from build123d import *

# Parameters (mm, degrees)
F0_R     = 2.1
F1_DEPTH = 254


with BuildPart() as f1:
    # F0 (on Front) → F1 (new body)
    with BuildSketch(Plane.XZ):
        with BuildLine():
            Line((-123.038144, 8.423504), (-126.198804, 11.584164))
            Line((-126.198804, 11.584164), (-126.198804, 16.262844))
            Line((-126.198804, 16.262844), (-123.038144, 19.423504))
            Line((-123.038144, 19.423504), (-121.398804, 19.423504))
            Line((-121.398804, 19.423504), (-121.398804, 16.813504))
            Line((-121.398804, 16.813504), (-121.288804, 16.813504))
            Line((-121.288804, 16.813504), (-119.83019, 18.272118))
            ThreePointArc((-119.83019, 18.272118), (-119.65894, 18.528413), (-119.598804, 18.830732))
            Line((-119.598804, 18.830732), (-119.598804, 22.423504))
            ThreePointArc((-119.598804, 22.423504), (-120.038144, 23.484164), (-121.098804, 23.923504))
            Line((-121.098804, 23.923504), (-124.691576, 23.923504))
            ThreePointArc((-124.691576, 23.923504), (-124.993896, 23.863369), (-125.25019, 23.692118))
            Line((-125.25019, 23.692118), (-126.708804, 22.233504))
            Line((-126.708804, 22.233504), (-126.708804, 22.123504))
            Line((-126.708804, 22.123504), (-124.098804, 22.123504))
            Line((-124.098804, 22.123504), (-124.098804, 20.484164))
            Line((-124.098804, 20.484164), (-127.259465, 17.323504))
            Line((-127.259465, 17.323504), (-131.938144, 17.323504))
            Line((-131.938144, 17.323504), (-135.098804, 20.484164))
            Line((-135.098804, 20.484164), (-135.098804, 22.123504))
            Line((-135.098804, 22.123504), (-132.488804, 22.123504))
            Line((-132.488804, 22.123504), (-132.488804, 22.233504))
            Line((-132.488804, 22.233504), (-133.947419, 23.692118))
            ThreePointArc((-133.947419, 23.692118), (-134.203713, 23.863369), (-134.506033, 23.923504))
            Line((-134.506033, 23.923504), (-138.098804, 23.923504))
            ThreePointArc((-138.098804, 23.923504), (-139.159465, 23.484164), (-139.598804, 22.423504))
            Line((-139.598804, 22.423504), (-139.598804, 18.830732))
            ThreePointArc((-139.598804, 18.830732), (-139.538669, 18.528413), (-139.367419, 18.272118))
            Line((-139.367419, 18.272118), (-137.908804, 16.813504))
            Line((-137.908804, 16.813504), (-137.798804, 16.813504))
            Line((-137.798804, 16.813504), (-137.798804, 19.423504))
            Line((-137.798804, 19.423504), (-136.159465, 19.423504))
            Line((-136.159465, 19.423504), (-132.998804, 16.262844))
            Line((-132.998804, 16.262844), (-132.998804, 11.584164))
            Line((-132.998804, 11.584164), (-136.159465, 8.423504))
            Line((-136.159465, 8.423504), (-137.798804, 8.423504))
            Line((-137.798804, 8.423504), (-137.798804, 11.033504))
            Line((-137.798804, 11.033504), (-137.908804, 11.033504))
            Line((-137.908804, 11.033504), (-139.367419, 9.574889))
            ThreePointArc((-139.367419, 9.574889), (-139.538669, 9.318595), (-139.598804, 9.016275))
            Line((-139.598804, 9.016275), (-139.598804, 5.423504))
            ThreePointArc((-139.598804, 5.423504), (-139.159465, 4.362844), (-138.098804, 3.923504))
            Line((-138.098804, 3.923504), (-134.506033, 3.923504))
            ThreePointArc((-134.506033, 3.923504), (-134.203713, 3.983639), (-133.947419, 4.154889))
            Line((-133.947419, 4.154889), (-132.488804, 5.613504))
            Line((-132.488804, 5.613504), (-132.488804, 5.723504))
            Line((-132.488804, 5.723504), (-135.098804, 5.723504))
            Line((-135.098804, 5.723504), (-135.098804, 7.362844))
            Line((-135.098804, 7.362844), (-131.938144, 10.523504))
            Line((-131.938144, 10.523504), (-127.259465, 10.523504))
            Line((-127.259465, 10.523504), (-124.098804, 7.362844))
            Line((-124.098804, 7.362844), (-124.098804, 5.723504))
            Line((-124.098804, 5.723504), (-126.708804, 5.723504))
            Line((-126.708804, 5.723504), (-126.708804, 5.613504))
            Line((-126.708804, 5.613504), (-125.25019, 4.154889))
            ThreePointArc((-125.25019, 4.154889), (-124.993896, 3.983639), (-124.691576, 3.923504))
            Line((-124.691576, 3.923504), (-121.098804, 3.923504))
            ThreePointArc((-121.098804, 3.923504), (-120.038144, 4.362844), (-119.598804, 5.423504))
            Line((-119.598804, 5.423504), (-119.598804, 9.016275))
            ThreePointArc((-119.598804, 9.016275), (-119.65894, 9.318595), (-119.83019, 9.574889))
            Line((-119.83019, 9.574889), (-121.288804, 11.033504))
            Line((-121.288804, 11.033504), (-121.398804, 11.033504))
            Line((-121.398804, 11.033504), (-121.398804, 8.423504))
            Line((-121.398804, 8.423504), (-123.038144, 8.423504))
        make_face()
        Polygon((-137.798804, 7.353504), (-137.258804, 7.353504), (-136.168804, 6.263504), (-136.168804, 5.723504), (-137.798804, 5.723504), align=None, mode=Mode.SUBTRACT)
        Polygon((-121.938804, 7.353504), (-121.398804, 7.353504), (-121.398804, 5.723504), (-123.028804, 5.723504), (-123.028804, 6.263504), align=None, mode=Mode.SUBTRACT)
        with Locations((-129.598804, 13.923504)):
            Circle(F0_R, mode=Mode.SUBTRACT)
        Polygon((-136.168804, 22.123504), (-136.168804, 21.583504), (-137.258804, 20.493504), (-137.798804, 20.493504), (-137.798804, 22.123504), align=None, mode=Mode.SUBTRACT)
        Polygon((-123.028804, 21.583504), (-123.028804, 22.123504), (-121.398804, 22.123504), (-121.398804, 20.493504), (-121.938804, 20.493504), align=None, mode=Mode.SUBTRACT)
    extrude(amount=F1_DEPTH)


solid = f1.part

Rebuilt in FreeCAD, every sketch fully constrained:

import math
import FreeCAD as App
import Part
import Sketcher
from FreeCAD import Vector

doc = App.newDocument("Part")
body = doc.addObject("PartDesign::Body", "Body")

sketch1 = body.newObject("Sketcher::SketchObject", "Sketch")
sketch1.AttachmentSupport = (doc.getObject("XZ_Plane"), [""])
sketch1.MapMode = "FlatFace"
sketch1.addGeometry([
    Part.LineSegment(Vector(-123.04, 8.42, 0), Vector(-126.2, 11.58, 0)),
    Part.LineSegment(Vector(-126.2, 11.58, 0), Vector(-126.2, 16.26, 0)),
    Part.LineSegment(Vector(-126.2, 16.26, 0), Vector(-123.04, 19.42, 0)),
    Part.LineSegment(Vector(-123.04, 19.42, 0), Vector(-121.4, 19.42, 0)),
    Part.LineSegment(Vector(-121.4, 19.42, 0), Vector(-121.4, 16.81, 0)),
    Part.LineSegment(Vector(-121.4, 16.81, 0), Vector(-121.29, 16.81, 0)),
    Part.LineSegment(Vector(-121.29, 16.81, 0), Vector(-119.83, 18.27, 0)),
    Part.ArcOfCircle(Part.Circle(Vector(-120.39, 18.83, 0), Vector(0, 0, 1), 0.79), math.radians(-45), math.radians(0)),
    Part.LineSegment(Vector(-119.6, 18.83, 0), Vector(-119.6, 22.42, 0)),
    Part.ArcOfCircle(Part.Circle(Vector(-121.1, 22.42, 0), Vector(0, 0, 1), 1.5), math.radians(0), math.radians(90)),
    Part.LineSegment(Vector(-121.1, 23.92, 0), Vector(-124.69, 23.92, 0)),
    Part.ArcOfCircle(Part.Circle(Vector(-124.69, 23.13, 0), Vector(0, 0, 1), 0.79), math.radians(90), math.radians(135)),
    Part.LineSegment(Vector(-125.25, 23.69, 0), Vector(-126.71, 22.23, 0)),
    Part.LineSegment(Vector(-126.71, 22.23, 0), Vector(-126.71, 22.12, 0)),
    Part.LineSegment(Vector(-126.71, 22.12, 0), Vector(-124.1, 22.12, 0)),
    Part.LineSegment(Vector(-124.1, 22.12, 0), Vector(-124.1, 20.48, 0)),
    Part.LineSegment(Vector(-124.1, 20.48, 0), Vector(-127.26, 17.32, 0)),
    Part.LineSegment(Vector(-127.26, 17.32, 0), Vector(-131.94, 17.32, 0)),
    Part.LineSegment(Vector(-131.94, 17.32, 0), Vector(-135.1, 20.48, 0)),
    Part.LineSegment(Vector(-135.1, 20.48, 0), Vector(-135.1, 22.12, 0)),
    Part.LineSegment(Vector(-135.1, 22.12, 0), Vector(-132.49, 22.12, 0)),
    Part.LineSegment(Vector(-132.49, 22.12, 0), Vector(-132.49, 22.23, 0)),
    Part.LineSegment(Vector(-132.49, 22.23, 0), Vector(-133.95, 23.69, 0)),
    Part.ArcOfCircle(Part.Circle(Vector(-134.51, 23.13, 0), Vector(0, 0, 1), 0.79), math.radians(45), math.radians(90)),
    Part.LineSegment(Vector(-134.51, 23.92, 0), Vector(-138.1, 23.92, 0)),
    Part.ArcOfCircle(Part.Circle(Vector(-138.1, 22.42, 0), Vector(0, 0, 1), 1.5), math.radians(90), math.radians(180)),
    Part.LineSegment(Vector(-139.6, 22.42, 0), Vector(-139.6, 18.83, 0)),
    Part.ArcOfCircle(Part.Circle(Vector(-138.81, 18.83, 0), Vector(0, 0, 1), 0.79), math.radians(-180), math.radians(-135)),
    Part.LineSegment(Vector(-139.37, 18.27, 0), Vector(-137.91, 16.81, 0)),
    Part.LineSegment(Vector(-137.91, 16.81, 0), Vector(-137.8, 16.81, 0)),
    Part.LineSegment(Vector(-137.8, 16.81, 0), Vector(-137.8, 19.42, 0)),
    Part.LineSegment(Vector(-137.8, 19.42, 0), Vector(-136.16, 19.42, 0)),
    Part.LineSegment(Vector(-136.16, 19.42, 0), Vector(-133, 16.26, 0)),
    Part.LineSegment(Vector(-133, 16.26, 0), Vector(-133, 11.58, 0)),
    Part.LineSegment(Vector(-133, 11.58, 0), Vector(-136.16, 8.42, 0)),
    Part.LineSegment(Vector(-136.16, 8.42, 0), Vector(-137.8, 8.42, 0)),
    Part.LineSegment(Vector(-137.8, 8.42, 0), Vector(-137.8, 11.03, 0)),
    Part.LineSegment(Vector(-137.8, 11.03, 0), Vector(-137.91, 11.03, 0)),
    Part.LineSegment(Vector(-137.91, 11.03, 0), Vector(-139.37, 9.57, 0)),
    Part.ArcOfCircle(Part.Circle(Vector(-138.81, 9.02, 0), Vector(0, 0, 1), 0.79), math.radians(135), math.radians(180)),
    Part.LineSegment(Vector(-139.6, 9.02, 0), Vector(-139.6, 5.42, 0)),
    Part.ArcOfCircle(Part.Circle(Vector(-138.1, 5.42, 0), Vector(0, 0, 1), 1.5), math.radians(180), math.radians(270)),
    Part.LineSegment(Vector(-138.1, 3.92, 0), Vector(-134.51, 3.92, 0)),
    Part.ArcOfCircle(Part.Circle(Vector(-134.51, 4.71, 0), Vector(0, 0, 1), 0.79), math.radians(-90), math.radians(-45)),
    Part.LineSegment(Vector(-133.95, 4.15, 0), Vector(-132.49, 5.61, 0)),
    Part.LineSegment(Vector(-132.49, 5.61, 0), Vector(-132.49, 5.72, 0)),
    Part.LineSegment(Vector(-132.49, 5.72, 0), Vector(-135.1, 5.72, 0)),
    Part.LineSegment(Vector(-135.1, 5.72, 0), Vector(-135.1, 7.36, 0)),
    Part.LineSegment(Vector(-135.1, 7.36, 0), Vector(-131.94, 10.52, 0)),
    Part.LineSegment(Vector(-131.94, 10.52, 0), Vector(-127.26, 10.52, 0)),
    Part.LineSegment(Vector(-127.26, 10.52, 0), Vector(-124.1, 7.36, 0)),
    Part.LineSegment(Vector(-124.1, 7.36, 0), Vector(-124.1, 5.72, 0)),
    Part.LineSegment(Vector(-124.1, 5.72, 0), Vector(-126.71, 5.72, 0)),
    Part.LineSegment(Vector(-126.71, 5.72, 0), Vector(-126.71, 5.61, 0)),
    Part.LineSegment(Vector(-126.71, 5.61, 0), Vector(-125.25, 4.15, 0)),
    Part.ArcOfCircle(Part.Circle(Vector(-124.69, 4.71, 0), Vector(0, 0, 1), 0.79), math.radians(-135), math.radians(-90)),
    Part.LineSegment(Vector(-124.69, 3.92, 0), Vector(-121.1, 3.92, 0)),
    Part.ArcOfCircle(Part.Circle(Vector(-121.1, 5.42, 0), Vector(0, 0, 1), 1.5), math.radians(-90), math.radians(0)),
    Part.LineSegment(Vector(-119.6, 5.42, 0), Vector(-119.6, 9.02, 0)),
    Part.ArcOfCircle(Part.Circle(Vector(-120.39, 9.02, 0), Vector(0, 0, 1), 0.79), math.radians(0), math.radians(45)),
    Part.LineSegment(Vector(-119.83, 9.57, 0), Vector(-121.29, 11.03, 0)),
    Part.LineSegment(Vector(-121.29, 11.03, 0), Vector(-121.4, 11.03, 0)),
    Part.LineSegment(Vector(-121.4, 11.03, 0), Vector(-121.4, 8.42, 0)),
    Part.LineSegment(Vector(-121.4, 8.42, 0), Vector(-123.04, 8.42, 0)),
    Part.LineSegment(Vector(-137.8, 5.72, 0), Vector(-137.8, 7.35, 0)),
    Part.LineSegment(Vector(-137.8, 7.35, 0), Vector(-137.26, 7.35, 0)),
    Part.LineSegment(Vector(-137.26, 7.35, 0), Vector(-136.17, 6.26, 0)),
    Part.LineSegment(Vector(-136.17, 6.26, 0), Vector(-136.17, 5.72, 0)),
    Part.LineSegment(Vector(-136.17, 5.72, 0), Vector(-137.8, 5.72, 0)),
    Part.LineSegment(Vector(-123.03, 6.26, 0), Vector(-121.94, 7.35, 0)),
    Part.LineSegment(Vector(-121.94, 7.35, 0), Vector(-121.4, 7.35, 0)),
    Part.LineSegment(Vector(-121.4, 7.35, 0), Vector(-121.4, 5.72, 0)),
    Part.LineSegment(Vector(-121.4, 5.72, 0), Vector(-123.03, 5.72, 0)),
    Part.LineSegment(Vector(-123.03, 5.72, 0), Vector(-123.03, 6.26, 0)),
    Part.Circle(Vector(-129.6, 13.92, 0), Vector(0, 0, 1), 2.1),
    Part.LineSegment(Vector(-137.8, 22.12, 0), Vector(-136.17, 22.12, 0)),
    Part.LineSegment(Vector(-136.17, 22.12, 0), Vector(-136.17, 21.58, 0)),
    Part.LineSegment(Vector(-136.17, 21.58, 0), Vector(-137.26, 20.49, 0)),
    Part.LineSegment(Vector(-137.26, 20.49, 0), Vector(-137.8, 20.49, 0)),
    Part.LineSegment(Vector(-137.8, 20.49, 0), Vector(-137.8, 22.12, 0)),
    Part.LineSegment(Vector(-121.94, 20.49, 0), Vector(-123.03, 21.58, 0)),
    Part.LineSegment(Vector(-123.03, 21.58, 0), Vector(-123.03, 22.12, 0)),
    Part.LineSegment(Vector(-123.03, 22.12, 0), Vector(-121.4, 22.12, 0)),
    Part.LineSegment(Vector(-121.4, 22.12, 0), Vector(-121.4, 20.49, 0)),
    Part.LineSegment(Vector(-121.4, 20.49, 0), Vector(-121.94, 20.49, 0)),
], False)
sketch1.addConstraint([
    Sketcher.Constraint("Coincident", 0, 2, 1, 1),
    Sketcher.Constraint("Coincident", 1, 2, 2, 1),
    Sketcher.Constraint("Coincident", 2, 2, 3, 1),
    Sketcher.Constraint("Coincident", 3, 2, 4, 1),
    Sketcher.Constraint("Coincident", 4, 2, 5, 1),
    Sketcher.Constraint("Coincident", 5, 2, 6, 1),
    Sketcher.Constraint("Coincident", 6, 2, 7, 1),
    Sketcher.Constraint("Coincident", 7, 2, 8, 1),
    Sketcher.Constraint("Tangent", 8, 2, 9, 1),
    Sketcher.Constraint("Tangent", 9, 2, 10, 1),
    Sketcher.Constraint("Coincident", 10, 2, 11, 1),
    Sketcher.Constraint("Coincident", 11, 2, 12, 1),
    Sketcher.Constraint("Coincident", 12, 2, 13, 1),
    Sketcher.Constraint("Coincident", 13, 2, 14, 1),
    Sketcher.Constraint("Coincident", 14, 2, 15, 1),
    Sketcher.Constraint("Coincident", 15, 2, 16, 1),
    Sketcher.Constraint("Coincident", 16, 2, 17, 1),
    Sketcher.Constraint("Coincident", 17, 2, 18, 1),
    Sketcher.Constraint("Coincident", 18, 2, 19, 1),
    Sketcher.Constraint("Coincident", 19, 2, 20, 1),
    Sketcher.Constraint("Coincident", 20, 2, 21, 1),
    Sketcher.Constraint("Coincident", 21, 2, 22, 1),
    Sketcher.Constraint("Coincident", 22, 2, 23, 1),
    Sketcher.Constraint("Coincident", 23, 2, 24, 1),
    Sketcher.Constraint("Tangent", 24, 2, 25, 1),
    Sketcher.Constraint("Tangent", 25, 2, 26, 1),
    Sketcher.Constraint("Tangent", 26, 2, 27, 1),
    Sketcher.Constraint("Coincident", 27, 2, 28, 1),
    Sketcher.Constraint("Coincident", 28, 2, 29, 1),
    Sketcher.Constraint("Coincident", 29, 2, 30, 1),
    Sketcher.Constraint("Coincident", 30, 2, 31, 1),
    Sketcher.Constraint("Coincident", 31, 2, 32, 1),
    Sketcher.Constraint("Coincident", 32, 2, 33, 1),
    Sketcher.Constraint("Coincident", 33, 2, 34, 1),
    Sketcher.Constraint("Coincident", 34, 2, 35, 1),
    Sketcher.Constraint("Coincident", 35, 2, 36, 1),
    Sketcher.Constraint("Coincident", 36, 2, 37, 1),
    Sketcher.Constraint("Coincident", 37, 2, 38, 1),
    Sketcher.Constraint("Tangent", 38, 2, 39, 1),
    Sketcher.Constraint("Tangent", 39, 2, 40, 1),
    Sketcher.Constraint("Tangent", 40, 2, 41, 1),
    Sketcher.Constraint("Tangent", 41, 2, 42, 1),
    Sketcher.Constraint("Tangent", 42, 2, 43, 1),
    Sketcher.Constraint("Tangent", 43, 2, 44, 1),
    Sketcher.Constraint("Coincident", 44, 2, 45, 1),
    Sketcher.Constraint("Coincident", 45, 2, 46, 1),
    Sketcher.Constraint("Coincident", 46, 2, 47, 1),
    Sketcher.Constraint("Coincident", 47, 2, 48, 1),
    Sketcher.Constraint("Coincident", 48, 2, 49, 1),
    Sketcher.Constraint("Coincident", 49, 2, 50, 1),
    Sketcher.Constraint("Coincident", 50, 2, 51, 1),
    Sketcher.Constraint("Coincident", 51, 2, 52, 1),
    Sketcher.Constraint("Coincident", 52, 2, 53, 1),
    Sketcher.Constraint("Coincident", 53, 2, 54, 1),
    Sketcher.Constraint("Tangent", 54, 2, 55, 1),
    Sketcher.Constraint("Tangent", 55, 2, 56, 1),
    Sketcher.Constraint("Tangent", 56, 2, 57, 1),
    Sketcher.Constraint("Tangent", 57, 2, 58, 1),
    Sketcher.Constraint("Coincident", 58, 2, 59, 1),
    Sketcher.Constraint("Tangent", 59, 2, 60, 1),
    Sketcher.Constraint("Coincident", 60, 2, 61, 1),
    Sketcher.Constraint("Coincident", 61, 2, 62, 1),
    Sketcher.Constraint("Coincident", 62, 2, 63, 1),
    Sketcher.Constraint("Coincident", 63, 2, 0, 1),
    Sketcher.Constraint("Coincident", 64, 2, 65, 1),
    Sketcher.Constraint("Coincident", 65, 2, 66, 1),
    Sketcher.Constraint("Coincident", 66, 2, 67, 1),
    Sketcher.Constraint("Coincident", 67, 2, 68, 1),
    Sketcher.Constraint("Coincident", 68, 2, 64, 1),
    Sketcher.Constraint("Coincident", 69, 2, 70, 1),
    Sketcher.Constraint("Coincident", 70, 2, 71, 1),
    Sketcher.Constraint("Coincident", 71, 2, 72, 1),
    Sketcher.Constraint("Coincident", 72, 2, 73, 1),
    Sketcher.Constraint("Coincident", 73, 2, 69, 1),
    Sketcher.Constraint("Coincident", 75, 2, 76, 1),
    Sketcher.Constraint("Coincident", 76, 2, 77, 1),
    Sketcher.Constraint("Coincident", 77, 2, 78, 1),
    Sketcher.Constraint("Coincident", 78, 2, 79, 1),
    Sketcher.Constraint("Coincident", 79, 2, 75, 1),
    Sketcher.Constraint("Coincident", 80, 2, 81, 1),
    Sketcher.Constraint("Coincident", 81, 2, 82, 1),
    Sketcher.Constraint("Coincident", 82, 2, 83, 1),
    Sketcher.Constraint("Coincident", 83, 2, 84, 1),
    Sketcher.Constraint("Coincident", 84, 2, 80, 1),
    Sketcher.Constraint("Vertical", 1),
    Sketcher.Constraint("Horizontal", 3),
    Sketcher.Constraint("Vertical", 4),
    Sketcher.Constraint("Horizontal", 5),
    Sketcher.Constraint("Vertical", 8),
    Sketcher.Constraint("Horizontal", 10),
    Sketcher.Constraint("Vertical", 13),
    Sketcher.Constraint("Horizontal", 14),
    Sketcher.Constraint("Vertical", 15),
    Sketcher.Constraint("Horizontal", 17),
    Sketcher.Constraint("Vertical", 19),
    Sketcher.Constraint("Horizontal", 20),
    Sketcher.Constraint("Vertical", 21),
    Sketcher.Constraint("Horizontal", 24),
    Sketcher.Constraint("Vertical", 26),
    Sketcher.Constraint("Horizontal", 29),
    Sketcher.Constraint("Vertical", 30),
    Sketcher.Constraint("Horizontal", 31),
    Sketcher.Constraint("Vertical", 33),
    Sketcher.Constraint("Horizontal", 35),
    Sketcher.Constraint("Vertical", 36),
    Sketcher.Constraint("Horizontal", 37),
    Sketcher.Constraint("Vertical", 40),
    Sketcher.Constraint("Horizontal", 42),
    Sketcher.Constraint("Vertical", 45),
    Sketcher.Constraint("Horizontal", 46),
    Sketcher.Constraint("Vertical", 47),
    Sketcher.Constraint("Horizontal", 49),
    Sketcher.Constraint("Vertical", 51),
    Sketcher.Constraint("Horizontal", 52),
    Sketcher.Constraint("Vertical", 53),
    Sketcher.Constraint("Horizontal", 56),
    Sketcher.Constraint("Vertical", 58),
    Sketcher.Constraint("Horizontal", 61),
    Sketcher.Constraint("Vertical", 62),
    Sketcher.Constraint("Horizontal", 63),
    Sketcher.Constraint("Vertical", 64),
    Sketcher.Constraint("Horizontal", 65),
    Sketcher.Constraint("Vertical", 67),
    Sketcher.Constraint("Horizontal", 68),
    Sketcher.Constraint("Horizontal", 70),
    Sketcher.Constraint("Vertical", 71),
    Sketcher.Constraint("Horizontal", 72),
    Sketcher.Constraint("Vertical", 73),
    Sketcher.Constraint("Horizontal", 75),
    Sketcher.Constraint("Vertical", 76),
    Sketcher.Constraint("Horizontal", 78),
    Sketcher.Constraint("Vertical", 79),
    Sketcher.Constraint("Vertical", 81),
    Sketcher.Constraint("Horizontal", 82),
    Sketcher.Constraint("Vertical", 83),
    Sketcher.Constraint("Horizontal", 84),
    Sketcher.Constraint("Equal", 11, 23),
    Sketcher.Constraint("Equal", 9, 25),
    Sketcher.Constraint("Equal", 25, 41),
    Sketcher.Constraint("Equal", 39, 43),
    Sketcher.Constraint("Equal", 43, 55),
    Sketcher.Constraint("Equal", 41, 57),
    Sketcher.Constraint("Equal", 27, 59),
    Sketcher.Constraint("Perpendicular", 0, 2),
    Sketcher.Constraint("Parallel", 2, 6),
    Sketcher.Constraint("Parallel", 6, 12),
    Sketcher.Constraint("Parallel", 12, 16),
    Sketcher.Constraint("Perpendicular", 16, 18),
    Sketcher.Constraint("Parallel", 18, 22),
    Sketcher.Constraint("Parallel", 22, 28),
    Sketcher.Constraint("Parallel", 28, 32),
    Sketcher.Constraint("Perpendicular", 32, 34),
    Sketcher.Constraint("Parallel", 34, 38),
    Sketcher.Constraint("Parallel", 38, 44),
    Sketcher.Constraint("Parallel", 44, 48),
    Sketcher.Constraint("Perpendicular", 48, 50),
    Sketcher.Constraint("Parallel", 50, 54),
    Sketcher.Constraint("Parallel", 54, 60),
    Sketcher.Constraint("Parallel", 60, 66),
    Sketcher.Constraint("Perpendicular", 66, 69),
    Sketcher.Constraint("Parallel", 69, 77),
    Sketcher.Constraint("Perpendicular", 77, 80),
    Sketcher.Constraint("Horizontal", 11, 3, 23, 3),
    Sketcher.Constraint("Horizontal", 43, 3, 55, 3),
    Sketcher.Constraint("Horizontal", 27, 3, 7, 2),
    Sketcher.Constraint("Horizontal", 15, 2, 18, 2),
    Sketcher.Constraint("Horizontal", 14, 2, 19, 2),
    Sketcher.Constraint("Horizontal", 12, 2, 21, 2),
    Sketcher.Constraint("Horizontal", 11, 2, 22, 2),
    Sketcher.Constraint("Horizontal", 6, 2, 27, 2),
    Sketcher.Constraint("Horizontal", 5, 2, 28, 2),
    Sketcher.Constraint("Horizontal", 3, 2, 30, 2),
    Sketcher.Constraint("Horizontal", 1, 2, 32, 2),
    Sketcher.Constraint("Horizontal", 0, 2, 33, 2),
    Sketcher.Constraint("Horizontal", 47, 2, 50, 2),
    Sketcher.Constraint("Horizontal", 46, 2, 51, 2),
    Sketcher.Constraint("Horizontal", 44, 2, 53, 2),
    Sketcher.Constraint("Horizontal", 43, 2, 54, 2),
    Sketcher.Constraint("Horizontal", 39, 2, 58, 2),
    Sketcher.Constraint("Horizontal", 38, 2, 59, 2),
    Sketcher.Constraint("Horizontal", 37, 2, 60, 2),
    Sketcher.Constraint("Horizontal", 35, 2, 62, 2),
    Sketcher.Constraint("Horizontal", 52, 2, 67, 2),
    Sketcher.Constraint("Horizontal", 65, 2, 69, 2),
    Sketcher.Constraint("Horizontal", 68, 2, 71, 2),
    Sketcher.Constraint("Horizontal", 66, 2, 73, 2),
    Sketcher.Constraint("Horizontal", 20, 2, 75, 2),
    Sketcher.Constraint("Horizontal", 76, 2, 80, 2),
    Sketcher.Constraint("Horizontal", 79, 2, 81, 2),
    Sketcher.Constraint("Horizontal", 78, 2, 83, 2),
    Sketcher.Constraint("Vertical", 25, 3, 41, 3),
    Sketcher.Constraint("Vertical", 23, 3, 43, 3),
    Sketcher.Constraint("Vertical", 11, 3, 55, 3),
    Sketcher.Constraint("Vertical", 9, 3, 57, 3),
    Sketcher.Constraint("Vertical", 55, 3, 10, 2),
    Sketcher.Constraint("Vertical", 43, 3, 23, 2),
    Sketcher.Constraint("Vertical", 31, 2, 34, 2),
    Sketcher.Constraint("Vertical", 30, 2, 35, 2),
    Sketcher.Constraint("Vertical", 28, 2, 37, 2),
    Sketcher.Constraint("Vertical", 27, 2, 38, 2),
    Sketcher.Constraint("Vertical", 22, 2, 43, 2),
    Sketcher.Constraint("Vertical", 21, 2, 44, 2),
    Sketcher.Constraint("Vertical", 19, 2, 46, 2),
    Sketcher.Constraint("Vertical", 17, 2, 48, 2),
    Sketcher.Constraint("Vertical", 16, 2, 49, 2),
    Sketcher.Constraint("Vertical", 6, 2, 59, 2),
    Sketcher.Constraint("Vertical", 4, 2, 61, 2),
    Sketcher.Constraint("Vertical", 36, 2, 64, 2),
    Sketcher.Constraint("Vertical", 62, 2, 70, 2),
    Sketcher.Constraint("Vertical", 67, 2, 75, 2),
    Sketcher.Constraint("Vertical", 65, 2, 77, 2),
    Sketcher.Constraint("Vertical", 68, 2, 78, 2),
    Sketcher.Constraint("Vertical", 73, 2, 80, 2),
    Sketcher.Constraint("Vertical", 71, 2, 82, 2),
    Sketcher.Constraint("Equal", 14, 20),
    Sketcher.Constraint("Equal", 10, 24),
    Sketcher.Constraint("Equal", 5, 29),
    Sketcher.Constraint("Equal", 3, 31),
    Sketcher.Constraint("Equal", 65, 70),
    Sketcher.Constraint("Equal", 49, 1),
    Sketcher.Constraint("Equal", 52, 4),
    Sketcher.Constraint("Equal", 56, 8),
    Sketcher.Constraint("Equal", 61, 13),
    Sketcher.Constraint("Equal", 63, 15),
    Sketcher.Constraint("Equal", 30, 36),
    Sketcher.Constraint("Equal", 26, 40),
    Sketcher.Constraint("Equal", 21, 45),
    Sketcher.Constraint("Equal", 19, 47),
    Sketcher.Constraint("Equal", 82, 64),
    Sketcher.Constraint("Equal", 73, 76),
    Sketcher.Constraint("Equal", 6, 12),
    Sketcher.Constraint("Equal", 2, 16),
    Sketcher.Constraint("Diameter", 74, 4.2),
    Sketcher.Constraint("Radius", 9, 1.500001),
    Sketcher.Constraint("Radius", 39, 0.789999),
    Sketcher.Constraint("DistanceX", 5, 1, 5, 2, 0.11),
    Sketcher.Constraint("DistanceX", 14, 1, 14, 2, 2.61),
    Sketcher.Constraint("DistanceX", 65, 1, 65, 2, 0.54),
    Sketcher.Constraint("DistanceX", 68, 2, 68, 1, 1.63),
    Sketcher.Constraint("Radius", 7, 0.79001),
    Sketcher.Constraint("Radius", 11, 0.789994),
    Sketcher.Constraint("Radius", 27, 0.790004),
    Sketcher.Constraint("DistanceX", 3, 1, 3, 2, 1.63934),
    Sketcher.Constraint("DistanceX", 10, 2, 10, 1, 3.592772),
    Sketcher.Constraint("DistanceX", 17, 2, 17, 1, 4.678679),
    Sketcher.Constraint("DistanceX", 27, 3, -1, 1, 138.8088),
    Sketcher.Constraint("Distance", 0, 4.469848),
    Sketcher.Constraint("Distance", 6, 2.062792),
    Sketcher.Constraint("DistanceY", -1, 1, 11, 3, 23.13351),
    Sketcher.Constraint("DistanceX", 74, 3, -1, 1, 129.598804),
    Sketcher.Constraint("DistanceY", -1, 1, 74, 3, 13.923504),
])
pad1 = body.newObject("PartDesign::Pad", "Pad")
pad1.Profile = sketch1
pad1.Length = 254

doc.recompute()
